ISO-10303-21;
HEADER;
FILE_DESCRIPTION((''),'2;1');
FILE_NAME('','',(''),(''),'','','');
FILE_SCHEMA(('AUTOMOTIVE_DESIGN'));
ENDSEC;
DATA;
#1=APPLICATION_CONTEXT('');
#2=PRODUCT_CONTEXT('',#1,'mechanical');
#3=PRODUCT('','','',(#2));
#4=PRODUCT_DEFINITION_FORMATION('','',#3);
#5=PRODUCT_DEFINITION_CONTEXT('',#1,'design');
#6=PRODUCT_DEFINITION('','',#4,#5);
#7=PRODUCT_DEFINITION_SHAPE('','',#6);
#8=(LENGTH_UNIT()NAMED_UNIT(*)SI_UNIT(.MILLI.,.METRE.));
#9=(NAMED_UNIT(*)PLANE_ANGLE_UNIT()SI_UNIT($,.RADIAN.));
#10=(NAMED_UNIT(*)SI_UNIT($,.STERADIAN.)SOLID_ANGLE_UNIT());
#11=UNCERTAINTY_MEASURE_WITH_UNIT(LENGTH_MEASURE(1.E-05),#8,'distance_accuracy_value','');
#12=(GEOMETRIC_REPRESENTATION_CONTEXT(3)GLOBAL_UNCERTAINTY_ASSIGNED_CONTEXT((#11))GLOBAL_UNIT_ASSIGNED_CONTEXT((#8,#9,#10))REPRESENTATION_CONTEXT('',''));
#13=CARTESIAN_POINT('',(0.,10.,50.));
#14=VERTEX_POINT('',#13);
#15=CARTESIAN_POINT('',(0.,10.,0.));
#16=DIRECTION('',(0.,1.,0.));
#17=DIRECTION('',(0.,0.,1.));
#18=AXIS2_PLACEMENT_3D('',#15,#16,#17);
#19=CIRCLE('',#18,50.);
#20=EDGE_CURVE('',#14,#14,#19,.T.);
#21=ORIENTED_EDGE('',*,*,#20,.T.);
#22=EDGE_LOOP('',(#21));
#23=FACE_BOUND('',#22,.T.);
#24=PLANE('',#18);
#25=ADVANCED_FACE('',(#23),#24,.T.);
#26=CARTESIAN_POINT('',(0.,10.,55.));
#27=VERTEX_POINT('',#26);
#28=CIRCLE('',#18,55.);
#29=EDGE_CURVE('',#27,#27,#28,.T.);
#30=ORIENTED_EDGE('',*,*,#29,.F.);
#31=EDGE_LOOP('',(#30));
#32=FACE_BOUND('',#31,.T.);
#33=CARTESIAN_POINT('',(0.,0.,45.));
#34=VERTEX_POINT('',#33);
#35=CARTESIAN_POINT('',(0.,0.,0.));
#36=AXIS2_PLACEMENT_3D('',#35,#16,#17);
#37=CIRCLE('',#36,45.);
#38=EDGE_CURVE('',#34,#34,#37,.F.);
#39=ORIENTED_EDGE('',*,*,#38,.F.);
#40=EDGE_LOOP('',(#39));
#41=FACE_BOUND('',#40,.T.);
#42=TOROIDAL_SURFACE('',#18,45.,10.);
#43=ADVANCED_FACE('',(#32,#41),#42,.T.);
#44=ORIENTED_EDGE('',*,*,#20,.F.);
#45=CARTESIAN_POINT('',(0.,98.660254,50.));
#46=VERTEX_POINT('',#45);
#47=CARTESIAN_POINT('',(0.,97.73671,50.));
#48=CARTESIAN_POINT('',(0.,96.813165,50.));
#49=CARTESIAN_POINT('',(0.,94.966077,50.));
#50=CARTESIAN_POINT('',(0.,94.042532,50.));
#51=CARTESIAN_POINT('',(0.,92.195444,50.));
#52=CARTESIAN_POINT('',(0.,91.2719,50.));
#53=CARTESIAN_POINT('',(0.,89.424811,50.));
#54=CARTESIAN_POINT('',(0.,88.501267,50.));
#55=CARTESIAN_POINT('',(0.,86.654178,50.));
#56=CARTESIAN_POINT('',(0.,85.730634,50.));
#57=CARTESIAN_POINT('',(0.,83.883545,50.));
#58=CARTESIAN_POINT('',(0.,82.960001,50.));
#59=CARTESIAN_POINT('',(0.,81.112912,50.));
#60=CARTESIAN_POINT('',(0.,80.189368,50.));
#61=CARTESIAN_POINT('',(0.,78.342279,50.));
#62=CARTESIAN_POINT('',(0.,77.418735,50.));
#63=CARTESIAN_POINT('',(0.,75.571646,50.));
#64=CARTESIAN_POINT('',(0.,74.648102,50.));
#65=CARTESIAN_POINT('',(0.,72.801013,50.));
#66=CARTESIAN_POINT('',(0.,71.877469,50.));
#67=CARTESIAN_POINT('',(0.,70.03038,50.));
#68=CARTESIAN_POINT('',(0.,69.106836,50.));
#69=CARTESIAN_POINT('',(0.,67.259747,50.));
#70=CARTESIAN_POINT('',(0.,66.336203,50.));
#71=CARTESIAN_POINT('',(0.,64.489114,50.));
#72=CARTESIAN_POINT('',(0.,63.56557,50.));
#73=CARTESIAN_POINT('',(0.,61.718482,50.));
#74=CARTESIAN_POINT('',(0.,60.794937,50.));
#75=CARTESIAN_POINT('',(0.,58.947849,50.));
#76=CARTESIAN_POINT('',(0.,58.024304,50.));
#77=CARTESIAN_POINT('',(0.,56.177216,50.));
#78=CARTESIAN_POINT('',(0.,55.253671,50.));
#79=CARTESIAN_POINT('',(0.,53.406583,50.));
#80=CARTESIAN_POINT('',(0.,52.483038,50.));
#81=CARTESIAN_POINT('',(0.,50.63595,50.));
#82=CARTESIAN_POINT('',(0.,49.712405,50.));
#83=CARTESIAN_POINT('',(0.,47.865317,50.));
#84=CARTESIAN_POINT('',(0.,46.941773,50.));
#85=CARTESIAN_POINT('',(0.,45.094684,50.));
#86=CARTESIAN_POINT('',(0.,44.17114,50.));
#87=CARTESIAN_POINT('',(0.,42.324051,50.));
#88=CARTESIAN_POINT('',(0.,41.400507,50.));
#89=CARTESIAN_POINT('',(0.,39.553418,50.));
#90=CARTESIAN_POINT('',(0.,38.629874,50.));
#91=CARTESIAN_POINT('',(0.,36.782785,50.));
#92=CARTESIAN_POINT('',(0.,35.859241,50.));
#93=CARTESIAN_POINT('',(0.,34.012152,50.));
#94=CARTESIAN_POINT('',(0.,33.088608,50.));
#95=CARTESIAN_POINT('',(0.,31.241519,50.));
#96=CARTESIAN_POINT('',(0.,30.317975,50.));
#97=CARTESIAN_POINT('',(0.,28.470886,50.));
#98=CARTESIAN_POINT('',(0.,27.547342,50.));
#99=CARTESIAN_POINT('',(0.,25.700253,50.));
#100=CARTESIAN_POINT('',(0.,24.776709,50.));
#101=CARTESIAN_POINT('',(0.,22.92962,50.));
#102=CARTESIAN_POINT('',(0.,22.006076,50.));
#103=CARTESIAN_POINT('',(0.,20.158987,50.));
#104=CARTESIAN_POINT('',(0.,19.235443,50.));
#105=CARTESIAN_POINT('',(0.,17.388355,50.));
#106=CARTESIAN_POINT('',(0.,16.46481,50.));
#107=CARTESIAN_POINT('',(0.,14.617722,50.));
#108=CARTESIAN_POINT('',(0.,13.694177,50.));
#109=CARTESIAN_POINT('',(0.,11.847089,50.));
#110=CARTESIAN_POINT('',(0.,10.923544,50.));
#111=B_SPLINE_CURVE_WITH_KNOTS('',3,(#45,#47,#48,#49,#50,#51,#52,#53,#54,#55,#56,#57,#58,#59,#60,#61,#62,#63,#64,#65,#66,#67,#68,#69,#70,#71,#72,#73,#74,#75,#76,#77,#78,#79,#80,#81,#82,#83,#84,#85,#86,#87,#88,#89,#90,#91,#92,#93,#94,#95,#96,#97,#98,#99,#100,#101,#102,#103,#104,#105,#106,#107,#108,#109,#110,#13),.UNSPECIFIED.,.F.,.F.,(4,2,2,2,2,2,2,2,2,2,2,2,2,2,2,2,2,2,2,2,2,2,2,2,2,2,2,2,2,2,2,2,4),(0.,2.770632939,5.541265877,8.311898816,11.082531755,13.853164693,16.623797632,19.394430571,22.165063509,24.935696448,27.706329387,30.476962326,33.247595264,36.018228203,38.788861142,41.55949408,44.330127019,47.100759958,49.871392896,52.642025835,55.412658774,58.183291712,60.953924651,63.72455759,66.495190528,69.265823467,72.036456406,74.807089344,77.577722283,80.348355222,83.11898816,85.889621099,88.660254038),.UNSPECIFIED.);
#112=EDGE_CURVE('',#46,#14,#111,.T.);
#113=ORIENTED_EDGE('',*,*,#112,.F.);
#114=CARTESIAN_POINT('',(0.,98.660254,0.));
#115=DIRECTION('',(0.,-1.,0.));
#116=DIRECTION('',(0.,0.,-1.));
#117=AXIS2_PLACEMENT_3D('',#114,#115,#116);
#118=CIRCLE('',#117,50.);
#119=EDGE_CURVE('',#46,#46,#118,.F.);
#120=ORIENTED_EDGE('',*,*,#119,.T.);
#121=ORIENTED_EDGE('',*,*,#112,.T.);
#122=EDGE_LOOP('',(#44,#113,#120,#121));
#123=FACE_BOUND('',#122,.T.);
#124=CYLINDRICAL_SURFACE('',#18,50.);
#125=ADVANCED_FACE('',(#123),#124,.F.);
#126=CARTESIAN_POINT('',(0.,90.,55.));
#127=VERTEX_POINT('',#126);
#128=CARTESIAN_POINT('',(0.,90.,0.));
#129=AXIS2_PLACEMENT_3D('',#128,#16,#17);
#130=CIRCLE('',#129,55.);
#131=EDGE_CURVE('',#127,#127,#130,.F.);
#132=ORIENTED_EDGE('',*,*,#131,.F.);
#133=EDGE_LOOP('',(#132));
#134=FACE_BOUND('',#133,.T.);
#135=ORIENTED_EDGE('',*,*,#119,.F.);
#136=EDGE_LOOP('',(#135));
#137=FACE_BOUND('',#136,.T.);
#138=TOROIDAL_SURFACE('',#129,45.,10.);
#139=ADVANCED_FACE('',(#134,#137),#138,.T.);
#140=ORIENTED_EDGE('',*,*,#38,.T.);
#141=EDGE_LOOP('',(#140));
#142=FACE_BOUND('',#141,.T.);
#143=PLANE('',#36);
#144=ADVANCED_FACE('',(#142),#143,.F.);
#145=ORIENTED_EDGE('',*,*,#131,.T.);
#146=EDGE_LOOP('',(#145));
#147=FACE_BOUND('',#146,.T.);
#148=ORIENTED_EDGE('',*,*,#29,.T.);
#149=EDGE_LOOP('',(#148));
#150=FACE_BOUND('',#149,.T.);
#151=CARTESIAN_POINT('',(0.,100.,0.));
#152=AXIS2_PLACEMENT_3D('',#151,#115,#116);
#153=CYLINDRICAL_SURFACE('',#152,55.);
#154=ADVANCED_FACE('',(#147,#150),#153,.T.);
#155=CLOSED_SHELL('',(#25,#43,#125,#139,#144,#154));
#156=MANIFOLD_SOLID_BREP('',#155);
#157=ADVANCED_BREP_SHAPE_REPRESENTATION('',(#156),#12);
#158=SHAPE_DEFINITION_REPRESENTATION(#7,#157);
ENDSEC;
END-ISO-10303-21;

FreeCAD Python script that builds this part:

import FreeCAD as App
import Part
import Sketcher

V = App.Vector


def edges_at(feature, points):
    """Names of the edges that pass closest to the given points."""
    edges = feature.Shape.Edges
    near = lambda p: min(range(len(edges)), key=lambda i: edges[i].distToShape(Part.Vertex(*p))[0])
    return sorted({f"Edge{near(p) + 1}" for p in points})

doc = App.newDocument("Part")
body = doc.addObject("PartDesign::Body", "Body")

# Sketch on XZ plane
sketch1 = body.newObject("Sketcher::SketchObject", "Sketch")
sketch1.AttachmentSupport = (doc.getObject("XZ_Plane"), [""])
sketch1.MapMode = "FlatFace"
sketch1.addGeometry(Part.Circle(V(0, 0, 0), V(0, 0, 1), 55), False)
sketch1.addConstraint(Sketcher.Constraint("Coincident", 0, 3, -1, 1))
sketch1.addConstraint(Sketcher.Constraint("Diameter", 0, 110.0))
pad1 = body.newObject("PartDesign::Pad", "Pad")
pad1.Profile = sketch1
pad1.Length = 100
pad1.Reversed = True
doc.recompute()

fillet = body.newObject("PartDesign::Fillet", "Fillet")
fillet.Base = (pad1, edges_at(pad1, [(0, 0, -55), (0, 100, -55)]))
fillet.Radius = 10

# Sketch on XZ plane
sketch2 = body.newObject("Sketcher::SketchObject", "Sketch001")
sketch2.AttachmentSupport = (doc.getObject("XZ_Plane"), [""])
sketch2.MapMode = "FlatFace"
sketch2.AttachmentOffset = App.Placement(V(0, 0, -100), App.Rotation())
sketch2.addGeometry(Part.Circle(V(0, 0, 0), V(0, 0, 1), 50), False)
sketch2.addConstraint(Sketcher.Constraint("Coincident", 0, 3, -1, 1))
sketch2.addConstraint(Sketcher.Constraint("Diameter", 0, 100.0))
pocket1 = body.newObject("PartDesign::Pocket", "Pocket")
pocket1.Profile = sketch2
pocket1.Length = 90
pocket1.Reversed = True

doc.recompute()
